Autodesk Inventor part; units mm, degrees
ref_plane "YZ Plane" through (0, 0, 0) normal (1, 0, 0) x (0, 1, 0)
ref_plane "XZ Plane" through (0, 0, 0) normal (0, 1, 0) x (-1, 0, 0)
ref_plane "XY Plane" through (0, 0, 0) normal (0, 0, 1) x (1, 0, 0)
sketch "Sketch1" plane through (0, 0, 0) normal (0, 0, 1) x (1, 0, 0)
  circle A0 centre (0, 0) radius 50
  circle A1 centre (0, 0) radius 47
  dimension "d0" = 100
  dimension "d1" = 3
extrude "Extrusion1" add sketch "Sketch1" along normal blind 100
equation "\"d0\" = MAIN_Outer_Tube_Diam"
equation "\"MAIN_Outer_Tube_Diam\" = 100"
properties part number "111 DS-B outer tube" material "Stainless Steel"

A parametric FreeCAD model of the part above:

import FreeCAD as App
import Part
import Sketcher
Q = App.Units.Quantity

doc = App.newDocument("Part")
body = doc.addObject("PartDesign::Body", "Body")

# Sketch on XY plane
sketch1 = doc.addObject("Sketcher::SketchObject", "Sketch")
body.addObject(sketch1)
sketch1.AttachmentSupport = (doc.XY_Plane, [""])
sketch1.MapMode = "FlatFace"
sketch1.addGeometry([
    Part.Circle(App.Vector(0, 0, 0), App.Vector(0, 0, 1), 50),
    Part.Circle(App.Vector(0, 0, 0), App.Vector(0, 0, 1), 47),
], False)
sketch1.addConstraint([
    Sketcher.Constraint("Coincident", 0, 3, -1, 1),
    Sketcher.Constraint("Coincident", 1, 3, -1, 1),
    Sketcher.Constraint("Diameter", 0, Q("100 mm")),
    Sketcher.Constraint("Diameter", 1, Q("94 mm")),
])
pad1 = doc.addObject("PartDesign::Pad", "Pad")
body.addObject(pad1)
pad1.Profile = sketch1
pad1.Length = 100

doc.recompute()
